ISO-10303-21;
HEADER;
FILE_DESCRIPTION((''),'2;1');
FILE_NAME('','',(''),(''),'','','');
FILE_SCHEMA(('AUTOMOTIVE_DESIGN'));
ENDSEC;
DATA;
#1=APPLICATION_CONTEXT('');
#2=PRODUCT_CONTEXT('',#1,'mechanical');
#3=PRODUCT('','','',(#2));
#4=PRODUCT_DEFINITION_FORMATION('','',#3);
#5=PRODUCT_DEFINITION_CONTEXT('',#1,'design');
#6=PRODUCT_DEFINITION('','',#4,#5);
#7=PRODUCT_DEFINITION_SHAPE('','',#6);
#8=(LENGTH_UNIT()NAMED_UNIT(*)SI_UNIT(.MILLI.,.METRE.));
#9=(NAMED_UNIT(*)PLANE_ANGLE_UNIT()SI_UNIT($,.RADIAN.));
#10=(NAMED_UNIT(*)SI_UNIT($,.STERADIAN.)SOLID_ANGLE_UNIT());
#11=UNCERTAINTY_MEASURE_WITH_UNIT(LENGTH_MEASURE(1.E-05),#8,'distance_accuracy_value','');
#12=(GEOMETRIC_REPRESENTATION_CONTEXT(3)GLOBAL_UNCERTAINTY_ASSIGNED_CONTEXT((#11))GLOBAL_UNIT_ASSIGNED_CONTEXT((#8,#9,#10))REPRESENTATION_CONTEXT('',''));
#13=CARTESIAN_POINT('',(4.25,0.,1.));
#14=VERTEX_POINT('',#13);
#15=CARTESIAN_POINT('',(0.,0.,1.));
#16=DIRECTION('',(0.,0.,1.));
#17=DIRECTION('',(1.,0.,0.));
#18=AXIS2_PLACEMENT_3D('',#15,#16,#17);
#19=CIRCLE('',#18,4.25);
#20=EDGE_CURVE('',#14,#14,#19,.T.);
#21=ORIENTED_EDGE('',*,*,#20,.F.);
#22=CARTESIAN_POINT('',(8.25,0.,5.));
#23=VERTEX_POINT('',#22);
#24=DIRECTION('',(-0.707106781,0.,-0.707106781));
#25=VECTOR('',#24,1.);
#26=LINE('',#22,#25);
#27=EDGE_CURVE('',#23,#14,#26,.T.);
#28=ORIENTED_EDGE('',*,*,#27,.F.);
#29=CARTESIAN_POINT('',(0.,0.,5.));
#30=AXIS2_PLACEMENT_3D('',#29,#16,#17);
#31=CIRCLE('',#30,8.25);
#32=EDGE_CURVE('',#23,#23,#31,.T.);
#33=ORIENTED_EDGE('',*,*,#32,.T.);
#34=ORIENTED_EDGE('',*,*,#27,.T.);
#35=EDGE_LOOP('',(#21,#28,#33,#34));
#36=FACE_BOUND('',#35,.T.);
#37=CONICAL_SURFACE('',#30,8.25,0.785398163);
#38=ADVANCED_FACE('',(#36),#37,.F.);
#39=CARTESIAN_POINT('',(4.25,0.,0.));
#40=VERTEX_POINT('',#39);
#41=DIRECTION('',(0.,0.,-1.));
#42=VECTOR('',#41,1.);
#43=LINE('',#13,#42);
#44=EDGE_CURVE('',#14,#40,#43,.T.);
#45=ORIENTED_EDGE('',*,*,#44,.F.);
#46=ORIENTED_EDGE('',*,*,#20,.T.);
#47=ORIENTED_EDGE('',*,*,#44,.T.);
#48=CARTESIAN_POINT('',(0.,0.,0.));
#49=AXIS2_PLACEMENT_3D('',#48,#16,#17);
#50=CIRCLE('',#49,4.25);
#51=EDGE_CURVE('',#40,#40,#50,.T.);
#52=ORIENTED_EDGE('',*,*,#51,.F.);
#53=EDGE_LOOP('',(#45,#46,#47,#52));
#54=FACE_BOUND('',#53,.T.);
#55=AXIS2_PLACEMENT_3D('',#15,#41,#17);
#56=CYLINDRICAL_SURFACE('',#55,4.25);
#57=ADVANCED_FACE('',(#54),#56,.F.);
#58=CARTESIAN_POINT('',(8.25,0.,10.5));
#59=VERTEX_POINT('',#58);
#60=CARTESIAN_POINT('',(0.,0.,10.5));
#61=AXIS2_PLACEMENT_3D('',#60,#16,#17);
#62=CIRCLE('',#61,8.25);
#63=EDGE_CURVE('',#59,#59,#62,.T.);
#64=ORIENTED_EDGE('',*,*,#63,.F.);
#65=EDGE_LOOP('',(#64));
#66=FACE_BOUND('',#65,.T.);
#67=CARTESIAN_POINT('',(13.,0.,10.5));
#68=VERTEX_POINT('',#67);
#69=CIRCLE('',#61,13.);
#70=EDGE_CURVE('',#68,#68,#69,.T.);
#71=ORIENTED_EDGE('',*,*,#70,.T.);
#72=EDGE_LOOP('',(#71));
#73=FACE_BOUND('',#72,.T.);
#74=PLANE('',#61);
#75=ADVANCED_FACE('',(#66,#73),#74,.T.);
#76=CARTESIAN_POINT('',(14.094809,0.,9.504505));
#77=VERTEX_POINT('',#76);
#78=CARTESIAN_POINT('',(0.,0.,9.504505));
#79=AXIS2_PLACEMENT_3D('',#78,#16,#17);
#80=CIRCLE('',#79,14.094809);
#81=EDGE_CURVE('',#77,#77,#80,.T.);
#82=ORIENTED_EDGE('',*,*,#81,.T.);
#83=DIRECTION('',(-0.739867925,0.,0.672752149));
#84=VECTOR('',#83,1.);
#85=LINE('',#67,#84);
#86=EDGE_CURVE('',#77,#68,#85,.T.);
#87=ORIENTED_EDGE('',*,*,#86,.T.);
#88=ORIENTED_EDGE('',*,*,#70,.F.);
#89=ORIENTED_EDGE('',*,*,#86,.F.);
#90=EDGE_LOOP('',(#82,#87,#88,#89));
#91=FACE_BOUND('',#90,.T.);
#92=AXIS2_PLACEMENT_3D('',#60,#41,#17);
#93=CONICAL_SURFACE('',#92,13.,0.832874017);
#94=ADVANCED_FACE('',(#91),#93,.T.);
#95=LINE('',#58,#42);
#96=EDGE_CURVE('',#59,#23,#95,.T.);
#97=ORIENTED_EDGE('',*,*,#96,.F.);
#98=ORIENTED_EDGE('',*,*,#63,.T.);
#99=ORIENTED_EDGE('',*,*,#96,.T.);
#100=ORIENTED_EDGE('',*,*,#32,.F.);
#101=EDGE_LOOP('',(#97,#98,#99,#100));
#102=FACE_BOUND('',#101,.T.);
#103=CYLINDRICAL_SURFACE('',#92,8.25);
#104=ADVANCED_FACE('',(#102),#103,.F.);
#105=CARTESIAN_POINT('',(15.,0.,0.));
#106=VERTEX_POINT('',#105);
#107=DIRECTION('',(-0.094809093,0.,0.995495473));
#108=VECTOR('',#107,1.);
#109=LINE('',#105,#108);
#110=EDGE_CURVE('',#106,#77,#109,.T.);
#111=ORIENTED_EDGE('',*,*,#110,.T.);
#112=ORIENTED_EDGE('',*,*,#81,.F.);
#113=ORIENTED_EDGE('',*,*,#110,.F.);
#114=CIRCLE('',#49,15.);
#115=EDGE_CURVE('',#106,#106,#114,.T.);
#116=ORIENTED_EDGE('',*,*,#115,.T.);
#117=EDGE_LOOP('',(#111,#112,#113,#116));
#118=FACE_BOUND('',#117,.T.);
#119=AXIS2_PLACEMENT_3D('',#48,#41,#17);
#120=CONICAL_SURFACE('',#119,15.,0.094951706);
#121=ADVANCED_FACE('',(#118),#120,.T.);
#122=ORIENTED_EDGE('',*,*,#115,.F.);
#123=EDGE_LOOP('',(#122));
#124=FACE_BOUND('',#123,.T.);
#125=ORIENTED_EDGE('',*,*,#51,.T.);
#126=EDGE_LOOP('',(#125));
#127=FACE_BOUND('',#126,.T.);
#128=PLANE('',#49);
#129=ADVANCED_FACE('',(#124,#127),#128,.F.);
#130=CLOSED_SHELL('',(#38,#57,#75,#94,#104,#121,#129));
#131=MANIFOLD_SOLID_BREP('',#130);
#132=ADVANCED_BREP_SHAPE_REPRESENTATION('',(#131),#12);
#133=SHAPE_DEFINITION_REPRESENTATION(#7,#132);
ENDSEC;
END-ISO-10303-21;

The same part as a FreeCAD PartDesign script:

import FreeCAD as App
import Part
import Sketcher

V = App.Vector
Q = App.Units.Quantity


def edges_at(feature, points):
    """Names of the edges that pass closest to the given points."""
    edges = feature.Shape.Edges
    near = lambda p: min(range(len(edges)), key=lambda i: edges[i].distToShape(Part.Vertex(*p))[0])
    return sorted({f"Edge{near(p) + 1}" for p in points})

doc = App.newDocument("Part")
body = doc.addObject("PartDesign::Body", "Body")

# Sketch on XZ plane
sketch1 = body.newObject("Sketcher::SketchObject", "Sketch")
sketch1.AttachmentSupport = (doc.getObject("XZ_Plane"), [""])
sketch1.MapMode = "FlatFace"
sketch1.addGeometry([
    Part.LineSegment(V(4.2, 1, 0), V(4.2, 0, 0)),  # 0
    Part.LineSegment(V(4.2, 0, 0), V(15, 0, 0)),  # 1
    Part.LineSegment(V(15, 0, 0), V(14, 10.5, 0)),  # 2
    Part.LineSegment(V(14, 10.5, 0), V(8.2, 10.5, 0)),  # 3
    Part.LineSegment(V(8.2, 10.5, 0), V(8.2, 5, 0)),  # 4
    Part.LineSegment(V(8.2, 5, 0), V(4.2, 1, 0)),  # 5
], False)
sketch1.addConstraint([
    Sketcher.Constraint("Coincident", 0, 2, 1, 1),
    Sketcher.Constraint("Coincident", 1, 2, 2, 1),
    Sketcher.Constraint("Coincident", 2, 2, 3, 1),
    Sketcher.Constraint("Coincident", 3, 2, 4, 1),
    Sketcher.Constraint("Coincident", 4, 2, 5, 1),
    Sketcher.Constraint("Coincident", 5, 2, 0, 1),
    Sketcher.Constraint("Vertical", 0),
    Sketcher.Constraint("Horizontal", 1),
    Sketcher.Constraint("Horizontal", 3),
    Sketcher.Constraint("Vertical", 4),
    Sketcher.Constraint("PointOnObject", 0, 2, -1),
    Sketcher.Constraint("DistanceY", 0, 2, 0, 1, 1.0),
    Sketcher.Constraint("Angle", 5, Q("-135 deg")),
    Sketcher.Constraint("DistanceY", 4, 2, 4, 1, 5.5),
    Sketcher.Constraint("DistanceX", -1, 1, 1, 2, 15.0),
    Sketcher.Constraint("DistanceX", -1, 1, 2, 2, 14.0),
    Sketcher.Constraint("DistanceY", -1, 1, 4, 2, 5.0),
    Sketcher.Constraint("DistanceX", 1, 1, 1, 2, 10.75),
])
revolution = body.newObject("PartDesign::Revolution", "Revolution")
revolution.Profile = sketch1
revolution.ReferenceAxis = (sketch1, ["V_Axis"])
revolution.Angle = 360
doc.recompute()

chamfer = body.newObject("PartDesign::Chamfer", "Chamfer")
chamfer.Base = (revolution, edges_at(revolution, [(-14, 0, 10.5)]))
chamfer.Size = 1

doc.recompute()
